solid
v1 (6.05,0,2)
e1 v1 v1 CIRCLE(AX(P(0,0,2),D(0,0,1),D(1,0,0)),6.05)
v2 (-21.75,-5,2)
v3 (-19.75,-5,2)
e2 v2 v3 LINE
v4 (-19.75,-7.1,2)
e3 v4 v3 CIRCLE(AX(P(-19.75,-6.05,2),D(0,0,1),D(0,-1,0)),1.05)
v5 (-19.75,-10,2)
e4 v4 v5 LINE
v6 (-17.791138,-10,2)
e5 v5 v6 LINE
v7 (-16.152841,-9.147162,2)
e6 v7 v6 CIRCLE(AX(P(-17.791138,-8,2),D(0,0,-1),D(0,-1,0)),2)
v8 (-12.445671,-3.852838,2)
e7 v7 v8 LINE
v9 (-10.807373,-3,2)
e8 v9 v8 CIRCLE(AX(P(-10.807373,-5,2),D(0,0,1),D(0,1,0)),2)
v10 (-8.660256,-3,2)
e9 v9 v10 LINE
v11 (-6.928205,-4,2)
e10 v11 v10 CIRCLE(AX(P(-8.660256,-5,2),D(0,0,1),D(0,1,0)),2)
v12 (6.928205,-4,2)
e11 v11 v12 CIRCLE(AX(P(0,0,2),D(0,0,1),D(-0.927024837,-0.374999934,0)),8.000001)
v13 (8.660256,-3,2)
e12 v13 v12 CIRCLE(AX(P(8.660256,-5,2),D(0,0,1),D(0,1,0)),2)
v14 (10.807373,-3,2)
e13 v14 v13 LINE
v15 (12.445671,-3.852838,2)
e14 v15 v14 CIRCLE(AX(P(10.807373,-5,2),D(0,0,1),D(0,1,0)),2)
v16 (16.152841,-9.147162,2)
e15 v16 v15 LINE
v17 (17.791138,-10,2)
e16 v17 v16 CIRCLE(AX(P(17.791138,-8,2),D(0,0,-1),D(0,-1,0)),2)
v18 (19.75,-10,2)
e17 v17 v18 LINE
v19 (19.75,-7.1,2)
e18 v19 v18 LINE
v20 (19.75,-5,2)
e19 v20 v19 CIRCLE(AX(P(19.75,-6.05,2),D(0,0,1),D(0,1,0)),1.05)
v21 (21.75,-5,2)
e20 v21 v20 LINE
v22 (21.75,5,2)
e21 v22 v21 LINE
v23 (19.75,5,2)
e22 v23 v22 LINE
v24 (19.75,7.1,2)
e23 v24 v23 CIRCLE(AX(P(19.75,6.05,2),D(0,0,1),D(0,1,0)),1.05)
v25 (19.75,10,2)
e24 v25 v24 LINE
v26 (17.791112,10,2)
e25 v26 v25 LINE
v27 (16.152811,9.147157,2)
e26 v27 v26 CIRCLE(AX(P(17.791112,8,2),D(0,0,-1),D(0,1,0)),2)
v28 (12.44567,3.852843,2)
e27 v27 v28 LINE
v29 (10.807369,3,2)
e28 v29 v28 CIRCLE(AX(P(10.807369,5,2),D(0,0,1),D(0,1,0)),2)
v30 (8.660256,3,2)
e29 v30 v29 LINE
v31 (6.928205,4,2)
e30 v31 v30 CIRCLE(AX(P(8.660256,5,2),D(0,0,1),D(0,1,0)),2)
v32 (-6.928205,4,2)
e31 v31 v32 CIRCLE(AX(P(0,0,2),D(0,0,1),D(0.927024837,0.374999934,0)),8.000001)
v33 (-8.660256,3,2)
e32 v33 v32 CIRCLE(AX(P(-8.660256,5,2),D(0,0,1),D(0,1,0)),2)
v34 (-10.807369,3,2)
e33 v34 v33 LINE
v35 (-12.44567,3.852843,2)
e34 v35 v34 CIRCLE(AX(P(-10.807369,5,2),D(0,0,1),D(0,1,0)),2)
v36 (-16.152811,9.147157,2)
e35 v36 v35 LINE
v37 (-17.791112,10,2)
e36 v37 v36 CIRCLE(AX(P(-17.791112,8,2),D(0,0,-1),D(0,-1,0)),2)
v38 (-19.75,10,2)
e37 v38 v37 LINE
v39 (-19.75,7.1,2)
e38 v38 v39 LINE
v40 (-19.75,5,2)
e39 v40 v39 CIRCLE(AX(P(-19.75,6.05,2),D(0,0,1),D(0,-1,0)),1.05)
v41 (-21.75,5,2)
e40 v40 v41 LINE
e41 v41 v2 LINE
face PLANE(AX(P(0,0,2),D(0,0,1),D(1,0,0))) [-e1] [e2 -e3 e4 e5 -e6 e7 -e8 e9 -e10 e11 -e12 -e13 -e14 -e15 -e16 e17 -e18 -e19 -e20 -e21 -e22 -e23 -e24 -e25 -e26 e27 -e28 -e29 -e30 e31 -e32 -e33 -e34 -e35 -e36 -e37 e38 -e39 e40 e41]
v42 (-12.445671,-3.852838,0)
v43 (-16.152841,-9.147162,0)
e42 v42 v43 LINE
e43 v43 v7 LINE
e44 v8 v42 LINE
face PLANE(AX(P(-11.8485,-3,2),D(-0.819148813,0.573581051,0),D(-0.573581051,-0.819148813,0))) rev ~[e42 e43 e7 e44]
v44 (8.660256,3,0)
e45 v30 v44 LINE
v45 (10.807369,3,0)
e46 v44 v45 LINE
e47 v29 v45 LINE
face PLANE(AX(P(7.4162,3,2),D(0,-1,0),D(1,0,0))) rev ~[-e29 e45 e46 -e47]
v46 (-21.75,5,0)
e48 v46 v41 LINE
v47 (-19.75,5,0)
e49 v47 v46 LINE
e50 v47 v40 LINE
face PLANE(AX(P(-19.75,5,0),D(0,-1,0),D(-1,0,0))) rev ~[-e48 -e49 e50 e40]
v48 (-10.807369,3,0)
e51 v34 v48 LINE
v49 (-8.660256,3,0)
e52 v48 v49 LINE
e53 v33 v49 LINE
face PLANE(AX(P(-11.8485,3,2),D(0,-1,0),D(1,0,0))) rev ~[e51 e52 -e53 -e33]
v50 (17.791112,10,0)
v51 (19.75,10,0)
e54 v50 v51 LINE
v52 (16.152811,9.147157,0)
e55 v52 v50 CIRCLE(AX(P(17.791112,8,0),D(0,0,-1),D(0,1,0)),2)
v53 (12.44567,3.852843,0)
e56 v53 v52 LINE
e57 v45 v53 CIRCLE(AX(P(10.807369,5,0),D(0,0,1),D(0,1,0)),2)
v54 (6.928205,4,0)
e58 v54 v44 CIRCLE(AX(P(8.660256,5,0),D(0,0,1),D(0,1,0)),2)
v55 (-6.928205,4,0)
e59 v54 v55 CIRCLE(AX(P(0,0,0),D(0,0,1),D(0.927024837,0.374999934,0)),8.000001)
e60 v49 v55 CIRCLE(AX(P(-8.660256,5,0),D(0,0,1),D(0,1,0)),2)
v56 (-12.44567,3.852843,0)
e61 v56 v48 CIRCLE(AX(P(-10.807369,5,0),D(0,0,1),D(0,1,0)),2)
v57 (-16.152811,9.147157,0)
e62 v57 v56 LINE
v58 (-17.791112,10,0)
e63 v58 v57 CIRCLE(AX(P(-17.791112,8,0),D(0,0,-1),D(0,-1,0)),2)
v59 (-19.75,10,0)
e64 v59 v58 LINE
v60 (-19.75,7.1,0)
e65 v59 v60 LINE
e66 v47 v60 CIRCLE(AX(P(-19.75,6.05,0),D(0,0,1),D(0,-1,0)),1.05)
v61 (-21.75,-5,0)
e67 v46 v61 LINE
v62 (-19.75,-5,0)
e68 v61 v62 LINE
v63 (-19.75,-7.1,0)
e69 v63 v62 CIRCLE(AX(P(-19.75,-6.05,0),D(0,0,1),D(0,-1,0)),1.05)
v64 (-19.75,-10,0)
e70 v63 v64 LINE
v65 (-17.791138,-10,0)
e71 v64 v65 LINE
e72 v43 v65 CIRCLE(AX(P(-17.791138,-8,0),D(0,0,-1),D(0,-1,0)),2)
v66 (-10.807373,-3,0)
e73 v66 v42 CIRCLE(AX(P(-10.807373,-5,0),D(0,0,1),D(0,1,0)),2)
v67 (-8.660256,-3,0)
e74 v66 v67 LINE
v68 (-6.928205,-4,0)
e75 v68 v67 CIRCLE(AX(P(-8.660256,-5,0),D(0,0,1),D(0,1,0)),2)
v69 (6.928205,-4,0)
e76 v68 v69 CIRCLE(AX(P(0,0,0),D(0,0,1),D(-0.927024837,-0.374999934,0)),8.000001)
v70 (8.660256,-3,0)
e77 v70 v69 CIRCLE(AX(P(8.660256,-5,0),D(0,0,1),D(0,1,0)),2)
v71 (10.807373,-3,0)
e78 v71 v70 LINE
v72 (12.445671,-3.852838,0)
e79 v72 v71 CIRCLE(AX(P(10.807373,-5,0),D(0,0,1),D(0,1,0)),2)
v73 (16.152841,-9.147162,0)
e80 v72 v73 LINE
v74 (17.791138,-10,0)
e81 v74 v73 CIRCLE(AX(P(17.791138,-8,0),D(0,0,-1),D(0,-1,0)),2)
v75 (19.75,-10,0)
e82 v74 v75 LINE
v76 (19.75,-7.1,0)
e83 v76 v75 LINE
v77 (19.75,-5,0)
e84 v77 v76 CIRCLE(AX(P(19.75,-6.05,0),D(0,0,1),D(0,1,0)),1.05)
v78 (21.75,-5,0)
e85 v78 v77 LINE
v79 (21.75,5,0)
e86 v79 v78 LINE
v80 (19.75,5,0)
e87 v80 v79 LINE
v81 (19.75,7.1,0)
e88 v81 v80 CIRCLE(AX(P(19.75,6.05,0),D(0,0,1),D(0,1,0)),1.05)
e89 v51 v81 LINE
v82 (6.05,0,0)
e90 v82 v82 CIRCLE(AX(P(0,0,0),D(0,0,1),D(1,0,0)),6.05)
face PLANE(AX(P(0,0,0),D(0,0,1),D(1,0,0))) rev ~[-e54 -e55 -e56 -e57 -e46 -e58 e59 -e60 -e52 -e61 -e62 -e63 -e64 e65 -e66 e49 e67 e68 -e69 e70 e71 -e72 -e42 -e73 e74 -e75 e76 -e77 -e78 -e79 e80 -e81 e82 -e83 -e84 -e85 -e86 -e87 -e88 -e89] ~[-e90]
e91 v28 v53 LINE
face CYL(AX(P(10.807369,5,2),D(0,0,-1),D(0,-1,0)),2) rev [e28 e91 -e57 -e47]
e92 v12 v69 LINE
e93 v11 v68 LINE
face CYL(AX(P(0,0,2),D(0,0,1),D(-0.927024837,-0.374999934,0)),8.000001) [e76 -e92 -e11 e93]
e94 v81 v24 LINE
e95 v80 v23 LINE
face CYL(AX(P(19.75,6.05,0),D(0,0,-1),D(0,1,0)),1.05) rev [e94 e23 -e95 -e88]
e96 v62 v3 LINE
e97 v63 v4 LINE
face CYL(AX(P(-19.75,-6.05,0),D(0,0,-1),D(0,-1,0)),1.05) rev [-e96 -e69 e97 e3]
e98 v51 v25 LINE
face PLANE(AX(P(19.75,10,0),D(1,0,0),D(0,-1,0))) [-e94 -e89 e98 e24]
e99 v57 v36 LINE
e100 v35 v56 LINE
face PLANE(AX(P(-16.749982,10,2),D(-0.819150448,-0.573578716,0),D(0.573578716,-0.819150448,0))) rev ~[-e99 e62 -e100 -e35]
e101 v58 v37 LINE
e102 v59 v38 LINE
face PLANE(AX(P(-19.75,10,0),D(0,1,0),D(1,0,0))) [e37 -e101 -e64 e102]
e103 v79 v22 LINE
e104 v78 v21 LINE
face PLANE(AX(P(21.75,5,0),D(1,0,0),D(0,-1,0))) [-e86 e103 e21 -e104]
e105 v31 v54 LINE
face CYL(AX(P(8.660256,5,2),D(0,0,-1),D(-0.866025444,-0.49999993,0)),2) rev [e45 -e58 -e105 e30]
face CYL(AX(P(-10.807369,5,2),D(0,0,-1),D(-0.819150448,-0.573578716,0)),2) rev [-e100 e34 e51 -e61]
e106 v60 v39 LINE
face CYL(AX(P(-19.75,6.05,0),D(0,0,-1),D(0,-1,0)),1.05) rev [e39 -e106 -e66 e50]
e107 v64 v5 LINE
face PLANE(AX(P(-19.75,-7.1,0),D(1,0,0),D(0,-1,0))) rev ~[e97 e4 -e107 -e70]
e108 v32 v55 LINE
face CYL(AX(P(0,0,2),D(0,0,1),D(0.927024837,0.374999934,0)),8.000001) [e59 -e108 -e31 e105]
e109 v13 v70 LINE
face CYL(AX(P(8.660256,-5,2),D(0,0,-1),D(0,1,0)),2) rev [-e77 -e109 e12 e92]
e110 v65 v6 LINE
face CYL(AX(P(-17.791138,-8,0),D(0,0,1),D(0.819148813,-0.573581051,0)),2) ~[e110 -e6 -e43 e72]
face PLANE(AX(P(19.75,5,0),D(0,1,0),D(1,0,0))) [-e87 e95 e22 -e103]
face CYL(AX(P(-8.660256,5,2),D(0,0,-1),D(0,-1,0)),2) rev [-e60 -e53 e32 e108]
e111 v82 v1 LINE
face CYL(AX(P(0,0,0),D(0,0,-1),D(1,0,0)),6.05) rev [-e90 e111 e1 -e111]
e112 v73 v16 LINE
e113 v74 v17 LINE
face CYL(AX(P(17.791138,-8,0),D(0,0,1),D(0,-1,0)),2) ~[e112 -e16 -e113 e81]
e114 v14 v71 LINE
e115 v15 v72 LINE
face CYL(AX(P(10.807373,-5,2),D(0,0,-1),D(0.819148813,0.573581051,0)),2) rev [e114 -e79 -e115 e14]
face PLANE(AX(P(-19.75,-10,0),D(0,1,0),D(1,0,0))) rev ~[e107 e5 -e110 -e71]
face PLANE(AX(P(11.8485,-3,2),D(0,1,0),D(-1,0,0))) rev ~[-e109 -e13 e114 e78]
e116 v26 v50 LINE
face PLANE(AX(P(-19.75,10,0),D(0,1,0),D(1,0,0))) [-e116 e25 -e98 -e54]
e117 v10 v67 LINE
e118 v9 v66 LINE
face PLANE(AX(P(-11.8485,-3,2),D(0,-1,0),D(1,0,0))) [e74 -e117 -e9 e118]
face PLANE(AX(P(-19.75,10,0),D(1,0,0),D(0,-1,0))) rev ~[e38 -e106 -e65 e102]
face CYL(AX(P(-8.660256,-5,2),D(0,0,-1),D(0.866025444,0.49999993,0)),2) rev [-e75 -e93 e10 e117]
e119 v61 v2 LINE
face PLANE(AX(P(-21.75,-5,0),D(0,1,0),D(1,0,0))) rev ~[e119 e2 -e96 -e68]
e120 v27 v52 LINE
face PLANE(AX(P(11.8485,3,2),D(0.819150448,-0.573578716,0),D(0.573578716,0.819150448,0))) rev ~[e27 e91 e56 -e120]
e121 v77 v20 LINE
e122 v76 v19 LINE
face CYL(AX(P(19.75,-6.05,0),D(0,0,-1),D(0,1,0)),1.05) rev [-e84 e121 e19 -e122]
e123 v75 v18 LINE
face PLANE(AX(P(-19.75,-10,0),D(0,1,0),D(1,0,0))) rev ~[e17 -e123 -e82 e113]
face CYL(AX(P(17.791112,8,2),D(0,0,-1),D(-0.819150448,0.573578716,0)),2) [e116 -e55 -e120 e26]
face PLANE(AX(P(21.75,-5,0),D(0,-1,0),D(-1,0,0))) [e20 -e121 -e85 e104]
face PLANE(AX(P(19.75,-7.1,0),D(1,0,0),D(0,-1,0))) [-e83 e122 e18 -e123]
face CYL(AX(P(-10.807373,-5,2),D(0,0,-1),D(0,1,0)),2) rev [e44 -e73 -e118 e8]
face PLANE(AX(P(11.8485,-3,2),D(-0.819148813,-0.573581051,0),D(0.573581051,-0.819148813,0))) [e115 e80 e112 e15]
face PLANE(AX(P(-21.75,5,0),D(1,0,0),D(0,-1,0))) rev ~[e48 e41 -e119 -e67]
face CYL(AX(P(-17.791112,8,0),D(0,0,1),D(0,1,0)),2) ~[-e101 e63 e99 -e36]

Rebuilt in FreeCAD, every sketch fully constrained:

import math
import FreeCAD as App
import Part
import Sketcher
Q = App.Units.Quantity


def edges_at(feature, points):
    """Names of the edges that pass closest to the given points."""
    edges = feature.Shape.Edges
    near = lambda p: min(range(len(edges)), key=lambda i: edges[i].distToShape(Part.Vertex(*p))[0])
    return sorted({f"Edge{near(p) + 1}" for p in points})

doc = App.newDocument("Part")
body = doc.addObject("PartDesign::Body", "Body")

sketch1 = body.newObject("Sketcher::SketchObject", "Sketch")
sketch1.AttachmentSupport = (doc.getObject("XY_Plane"), [""])
sketch1.MapMode = "FlatFace"
sketch1.addGeometry([
    Part.LineSegment(App.Vector(19.8, 10, 0), App.Vector(-19.8, 10, 0)),
    Part.LineSegment(App.Vector(-19.8, 10, 0), App.Vector(-19.8, 7.1, 0)),
    Part.ArcOfCircle(Part.Circle(App.Vector(-19.8, 6, 0), App.Vector(0, 0, 1), 1), math.radians(-90), math.radians(90)),
    Part.LineSegment(App.Vector(-19.8, 5, 0), App.Vector(-21.8, 5, 0)),
    Part.LineSegment(App.Vector(-21.8, 5, 0), App.Vector(-21.8, -5, 0)),
    Part.LineSegment(App.Vector(-21.8, -5, 0), App.Vector(-19.8, -5, 0)),
    Part.ArcOfCircle(Part.Circle(App.Vector(-19.8, -6, 0), App.Vector(0, 0, 1), 1), math.radians(-90), math.radians(90)),
    Part.LineSegment(App.Vector(-19.8, -7.1, 0), App.Vector(-19.8, -10, 0)),
    Part.LineSegment(App.Vector(-19.8, -10, 0), App.Vector(19.8, -10, 0)),
    Part.LineSegment(App.Vector(19.8, -10, 0), App.Vector(19.8, -7.1, 0)),
    Part.ArcOfCircle(Part.Circle(App.Vector(19.8, -6, 0), App.Vector(0, 0, 1), 1), math.radians(90), math.radians(270)),
    Part.LineSegment(App.Vector(19.8, -5, 0), App.Vector(21.8, -5, 0)),
    Part.LineSegment(App.Vector(21.8, -5, 0), App.Vector(21.8, 5, 0)),
    Part.LineSegment(App.Vector(21.8, 5, 0), App.Vector(19.8, 5, 0)),
    Part.ArcOfCircle(Part.Circle(App.Vector(19.8, 6, 0), App.Vector(0, 0, 1), 1), math.radians(90), math.radians(270)),
    Part.LineSegment(App.Vector(19.8, 7.1, 0), App.Vector(19.8, 10, 0)),
    Part.Circle(App.Vector(-13.5, 1, 0), App.Vector(0, 0, 1), 1.4),
    Part.Circle(App.Vector(0, 0, 0), App.Vector(0, 0, 1), 6),
    Part.Circle(App.Vector(13.5, 1, 0), App.Vector(0, 0, 1), 1.4),
], False)
sketch1.addConstraint([
    Sketcher.Constraint("Coincident", 0, 2, 1, 1),
    Sketcher.Constraint("Coincident", 1, 2, 2, 2),
    Sketcher.Constraint("Tangent", 2, 1, 3, 1),
    Sketcher.Constraint("Coincident", 3, 2, 4, 1),
    Sketcher.Constraint("Coincident", 4, 2, 5, 1),
    Sketcher.Constraint("Tangent", 5, 2, 6, 2),
    Sketcher.Constraint("Coincident", 6, 1, 7, 1),
    Sketcher.Constraint("Coincident", 7, 2, 8, 1),
    Sketcher.Constraint("Coincident", 8, 2, 9, 1),
    Sketcher.Constraint("Coincident", 9, 2, 10, 2),
    Sketcher.Constraint("Tangent", 10, 1, 11, 1),
    Sketcher.Constraint("Coincident", 11, 2, 12, 1),
    Sketcher.Constraint("Coincident", 12, 2, 13, 1),
    Sketcher.Constraint("Tangent", 13, 2, 14, 2),
    Sketcher.Constraint("Coincident", 14, 1, 15, 1),
    Sketcher.Constraint("Coincident", 15, 2, 0, 1),
    Sketcher.Constraint("Horizontal", 0),
    Sketcher.Constraint("Vertical", 1),
    Sketcher.Constraint("Horizontal", 3),
    Sketcher.Constraint("Vertical", 4),
    Sketcher.Constraint("Horizontal", 5),
    Sketcher.Constraint("Vertical", 7),
    Sketcher.Constraint("Horizontal", 8),
    Sketcher.Constraint("Vertical", 9),
    Sketcher.Constraint("Horizontal", 11),
    Sketcher.Constraint("Vertical", 12),
    Sketcher.Constraint("Horizontal", 13),
    Sketcher.Constraint("Vertical", 15),
    Sketcher.Constraint("Coincident", 17, 3, -1, 1),
    Sketcher.Constraint("Equal", 2, 6),
    Sketcher.Constraint("Equal", 6, 10),
    Sketcher.Constraint("Equal", 10, 14),
    Sketcher.Constraint("Equal", 16, 18),
    Sketcher.Constraint("Symmetric", 2, 3, 10, 3, -1, 1),
    Sketcher.Constraint("Symmetric", 6, 3, 14, 3, -1, 1),
    Sketcher.Constraint("Symmetric", 0, 2, 8, 2, -1, 1),
    Sketcher.Constraint("Symmetric", 6, 3, 10, 3, -2),
    Sketcher.Constraint("Symmetric", 16, 3, 18, 3, -2),
    Sketcher.Constraint("Vertical", 6, 3, 0, 2),
    Sketcher.Constraint("Vertical", 5, 2, 6, 1),
    Sketcher.Constraint("Vertical", 13, 2, 14, 1),
    Sketcher.Constraint("Equal", 5, 11),
    Sketcher.Constraint("Diameter", 16, 2.7),
    Sketcher.Constraint("Diameter", 17, 12.1),
    Sketcher.Constraint("DistanceX", 3, 2, 3, 1, 2.0),
    Sketcher.Constraint("DistanceY", 4, 2, 4, 1, 10.0),
    Sketcher.Constraint("Radius", 2, 1.05),
    Sketcher.Constraint("DistanceX", 0, 2, 0, 1, 39.5),
    Sketcher.Constraint("DistanceY", -1, 1, 16, 3, 1.0),
    Sketcher.Constraint("DistanceY", -1, 1, 0, 2, 10.0),
    Sketcher.Constraint("DistanceX", 16, 3, 18, 3, 27.0),
])
pad1 = body.newObject("PartDesign::Pad", "Pad")
pad1.Profile = sketch1
pad1.Length = 2

sketch2 = body.newObject("Sketcher::SketchObject", "Sketch001")
sketch2.AttachmentSupport = (doc.getObject("XY_Plane"), [""])
sketch2.MapMode = "FlatFace"
sketch2.AttachmentOffset = App.Placement(App.Vector(0, 0, 2), App.Rotation())
sketch2.addGeometry([
    Part.LineSegment(App.Vector(-11.8, -3, 0), App.Vector(-24.3, -20.8, 0)),
    Part.LineSegment(App.Vector(-24.3, -20.8, 0), App.Vector(24.3, -20.8, 0)),
    Part.LineSegment(App.Vector(24.3, -20.8, 0), App.Vector(11.8, -3, 0)),
    Part.LineSegment(App.Vector(11.8, -3, 0), App.Vector(7.4, -3, 0)),
    Part.ArcOfCircle(Part.Circle(App.Vector(0, 0, 0), App.Vector(0, 0, 1), 8), math.radians(-158), math.radians(-22)),
    Part.LineSegment(App.Vector(-7.4, -3, 0), App.Vector(-11.8, -3, 0)),
    Part.LineSegment(App.Vector(11.8, 3, 0), App.Vector(18.5, 12.4, 0)),
    Part.LineSegment(App.Vector(18.5, 12.4, 0), App.Vector(-18.5, 12.4, 0)),
    Part.LineSegment(App.Vector(-18.5, 12.4, 0), App.Vector(-11.8, 3, 0)),
    Part.LineSegment(App.Vector(-11.8, 3, 0), App.Vector(-7.4, 3, 0)),
    Part.ArcOfCircle(Part.Circle(App.Vector(0, 0, 0), App.Vector(0, 0, 1), 8), math.radians(22), math.radians(158)),
    Part.LineSegment(App.Vector(7.4, 3, 0), App.Vector(11.8, 3, 0)),
], False)
sketch2.addConstraint([
    Sketcher.Constraint("Coincident", 0, 2, 1, 1),
    Sketcher.Constraint("Coincident", 1, 2, 2, 1),
    Sketcher.Constraint("Coincident", 2, 2, 3, 1),
    Sketcher.Constraint("Coincident", 3, 2, 4, 2),
    Sketcher.Constraint("Coincident", 4, 1, 5, 1),
    Sketcher.Constraint("Coincident", 5, 2, 0, 1),
    Sketcher.Constraint("Coincident", 6, 2, 7, 1),
    Sketcher.Constraint("Coincident", 7, 2, 8, 1),
    Sketcher.Constraint("Coincident", 8, 2, 9, 1),
    Sketcher.Constraint("Coincident", 9, 2, 10, 2),
    Sketcher.Constraint("Coincident", 10, 1, 11, 1),
    Sketcher.Constraint("Coincident", 11, 2, 6, 1),
    Sketcher.Constraint("Horizontal", 1),
    Sketcher.Constraint("Horizontal", 3),
    Sketcher.Constraint("Horizontal", 5),
    Sketcher.Constraint("Horizontal", 7),
    Sketcher.Constraint("Horizontal", 9),
    Sketcher.Constraint("Horizontal", 11),
    Sketcher.Constraint("Coincident", 4, 3, -1, 1),
    Sketcher.Constraint("Coincident", 10, 3, -1, 1),
    Sketcher.Constraint("Equal", 4, 10),
    Sketcher.Constraint("Symmetric", 2, 2, 8, 2, -1, 1),
    Sketcher.Constraint("Symmetric", 5, 2, 11, 2, -1, 1),
    Sketcher.Constraint("Symmetric", 2, 2, 5, 2, -2),
    Sketcher.Constraint("Parallel", 0, 6),
    Sketcher.Constraint("Parallel", 2, 8),
    Sketcher.Constraint("Equal", 0, 2),
    Sketcher.Constraint("Radius", 4, 8.0),
    Sketcher.Constraint("DistanceY", 2, 2, -1, 1, 3.0),
    Sketcher.Constraint("Angle", 0, Q("-125.0003 deg")),
    Sketcher.Constraint("DistanceX", 1, 1, 1, 2, 48.666),
    Sketcher.Constraint("Distance", 0, 21.766),
    Sketcher.Constraint("Distance", 6, 11.534),
])
pocket1 = body.newObject("PartDesign::Pocket", "Pocket")
pocket1.Profile = sketch2
pocket1.Length = 10
doc.recompute()

fillet = body.newObject("PartDesign::Fillet", "Fillet")
fillet.Base = (pocket1, edges_at(pocket1, [
    (-11.848, 3, 1),
    (-7.416, 3, 1),
    (7.416, 3, 1),
    (11.848, -3, 1),
    (7.416, -3, 1),
    (-7.416, -3, 1),
    (-11.848, -3, 1),
    (-16.75, -10, 1),
    (-16.75, 10, 1),
    (16.75, 10, 1),
    (16.75, -10, 1),
    (11.848, 3, 1),
]))
fillet.Radius = 2

sketch3 = body.newObject("Sketcher::SketchObject", "Sketch002")
sketch3.AttachmentSupport = (doc.getObject("XY_Plane"), [""])
sketch3.MapMode = "FlatFace"
sketch3.addGeometry([
    Part.Circle(App.Vector(-13.5, 1, 0), App.Vector(0, 0, 1), 1.4),
    Part.Circle(App.Vector(13.5, 1, 0), App.Vector(0, 0, 1), 1.4),
], False)
sketch3.addConstraint([
    Sketcher.Constraint("Equal", 0, 1),
    Sketcher.Constraint("Symmetric", 0, 3, 1, 3, -2),
    Sketcher.Constraint("Diameter", 0, 2.7),
    Sketcher.Constraint("DistanceY", -1, 1, 0, 3, 1.0),
    Sketcher.Constraint("DistanceX", 0, 3, 1, 3, 27.0),
])
pad2 = body.newObject("PartDesign::Pad", "Pad001")
pad2.Profile = sketch3
pad2.Length = 2

doc.recompute()
